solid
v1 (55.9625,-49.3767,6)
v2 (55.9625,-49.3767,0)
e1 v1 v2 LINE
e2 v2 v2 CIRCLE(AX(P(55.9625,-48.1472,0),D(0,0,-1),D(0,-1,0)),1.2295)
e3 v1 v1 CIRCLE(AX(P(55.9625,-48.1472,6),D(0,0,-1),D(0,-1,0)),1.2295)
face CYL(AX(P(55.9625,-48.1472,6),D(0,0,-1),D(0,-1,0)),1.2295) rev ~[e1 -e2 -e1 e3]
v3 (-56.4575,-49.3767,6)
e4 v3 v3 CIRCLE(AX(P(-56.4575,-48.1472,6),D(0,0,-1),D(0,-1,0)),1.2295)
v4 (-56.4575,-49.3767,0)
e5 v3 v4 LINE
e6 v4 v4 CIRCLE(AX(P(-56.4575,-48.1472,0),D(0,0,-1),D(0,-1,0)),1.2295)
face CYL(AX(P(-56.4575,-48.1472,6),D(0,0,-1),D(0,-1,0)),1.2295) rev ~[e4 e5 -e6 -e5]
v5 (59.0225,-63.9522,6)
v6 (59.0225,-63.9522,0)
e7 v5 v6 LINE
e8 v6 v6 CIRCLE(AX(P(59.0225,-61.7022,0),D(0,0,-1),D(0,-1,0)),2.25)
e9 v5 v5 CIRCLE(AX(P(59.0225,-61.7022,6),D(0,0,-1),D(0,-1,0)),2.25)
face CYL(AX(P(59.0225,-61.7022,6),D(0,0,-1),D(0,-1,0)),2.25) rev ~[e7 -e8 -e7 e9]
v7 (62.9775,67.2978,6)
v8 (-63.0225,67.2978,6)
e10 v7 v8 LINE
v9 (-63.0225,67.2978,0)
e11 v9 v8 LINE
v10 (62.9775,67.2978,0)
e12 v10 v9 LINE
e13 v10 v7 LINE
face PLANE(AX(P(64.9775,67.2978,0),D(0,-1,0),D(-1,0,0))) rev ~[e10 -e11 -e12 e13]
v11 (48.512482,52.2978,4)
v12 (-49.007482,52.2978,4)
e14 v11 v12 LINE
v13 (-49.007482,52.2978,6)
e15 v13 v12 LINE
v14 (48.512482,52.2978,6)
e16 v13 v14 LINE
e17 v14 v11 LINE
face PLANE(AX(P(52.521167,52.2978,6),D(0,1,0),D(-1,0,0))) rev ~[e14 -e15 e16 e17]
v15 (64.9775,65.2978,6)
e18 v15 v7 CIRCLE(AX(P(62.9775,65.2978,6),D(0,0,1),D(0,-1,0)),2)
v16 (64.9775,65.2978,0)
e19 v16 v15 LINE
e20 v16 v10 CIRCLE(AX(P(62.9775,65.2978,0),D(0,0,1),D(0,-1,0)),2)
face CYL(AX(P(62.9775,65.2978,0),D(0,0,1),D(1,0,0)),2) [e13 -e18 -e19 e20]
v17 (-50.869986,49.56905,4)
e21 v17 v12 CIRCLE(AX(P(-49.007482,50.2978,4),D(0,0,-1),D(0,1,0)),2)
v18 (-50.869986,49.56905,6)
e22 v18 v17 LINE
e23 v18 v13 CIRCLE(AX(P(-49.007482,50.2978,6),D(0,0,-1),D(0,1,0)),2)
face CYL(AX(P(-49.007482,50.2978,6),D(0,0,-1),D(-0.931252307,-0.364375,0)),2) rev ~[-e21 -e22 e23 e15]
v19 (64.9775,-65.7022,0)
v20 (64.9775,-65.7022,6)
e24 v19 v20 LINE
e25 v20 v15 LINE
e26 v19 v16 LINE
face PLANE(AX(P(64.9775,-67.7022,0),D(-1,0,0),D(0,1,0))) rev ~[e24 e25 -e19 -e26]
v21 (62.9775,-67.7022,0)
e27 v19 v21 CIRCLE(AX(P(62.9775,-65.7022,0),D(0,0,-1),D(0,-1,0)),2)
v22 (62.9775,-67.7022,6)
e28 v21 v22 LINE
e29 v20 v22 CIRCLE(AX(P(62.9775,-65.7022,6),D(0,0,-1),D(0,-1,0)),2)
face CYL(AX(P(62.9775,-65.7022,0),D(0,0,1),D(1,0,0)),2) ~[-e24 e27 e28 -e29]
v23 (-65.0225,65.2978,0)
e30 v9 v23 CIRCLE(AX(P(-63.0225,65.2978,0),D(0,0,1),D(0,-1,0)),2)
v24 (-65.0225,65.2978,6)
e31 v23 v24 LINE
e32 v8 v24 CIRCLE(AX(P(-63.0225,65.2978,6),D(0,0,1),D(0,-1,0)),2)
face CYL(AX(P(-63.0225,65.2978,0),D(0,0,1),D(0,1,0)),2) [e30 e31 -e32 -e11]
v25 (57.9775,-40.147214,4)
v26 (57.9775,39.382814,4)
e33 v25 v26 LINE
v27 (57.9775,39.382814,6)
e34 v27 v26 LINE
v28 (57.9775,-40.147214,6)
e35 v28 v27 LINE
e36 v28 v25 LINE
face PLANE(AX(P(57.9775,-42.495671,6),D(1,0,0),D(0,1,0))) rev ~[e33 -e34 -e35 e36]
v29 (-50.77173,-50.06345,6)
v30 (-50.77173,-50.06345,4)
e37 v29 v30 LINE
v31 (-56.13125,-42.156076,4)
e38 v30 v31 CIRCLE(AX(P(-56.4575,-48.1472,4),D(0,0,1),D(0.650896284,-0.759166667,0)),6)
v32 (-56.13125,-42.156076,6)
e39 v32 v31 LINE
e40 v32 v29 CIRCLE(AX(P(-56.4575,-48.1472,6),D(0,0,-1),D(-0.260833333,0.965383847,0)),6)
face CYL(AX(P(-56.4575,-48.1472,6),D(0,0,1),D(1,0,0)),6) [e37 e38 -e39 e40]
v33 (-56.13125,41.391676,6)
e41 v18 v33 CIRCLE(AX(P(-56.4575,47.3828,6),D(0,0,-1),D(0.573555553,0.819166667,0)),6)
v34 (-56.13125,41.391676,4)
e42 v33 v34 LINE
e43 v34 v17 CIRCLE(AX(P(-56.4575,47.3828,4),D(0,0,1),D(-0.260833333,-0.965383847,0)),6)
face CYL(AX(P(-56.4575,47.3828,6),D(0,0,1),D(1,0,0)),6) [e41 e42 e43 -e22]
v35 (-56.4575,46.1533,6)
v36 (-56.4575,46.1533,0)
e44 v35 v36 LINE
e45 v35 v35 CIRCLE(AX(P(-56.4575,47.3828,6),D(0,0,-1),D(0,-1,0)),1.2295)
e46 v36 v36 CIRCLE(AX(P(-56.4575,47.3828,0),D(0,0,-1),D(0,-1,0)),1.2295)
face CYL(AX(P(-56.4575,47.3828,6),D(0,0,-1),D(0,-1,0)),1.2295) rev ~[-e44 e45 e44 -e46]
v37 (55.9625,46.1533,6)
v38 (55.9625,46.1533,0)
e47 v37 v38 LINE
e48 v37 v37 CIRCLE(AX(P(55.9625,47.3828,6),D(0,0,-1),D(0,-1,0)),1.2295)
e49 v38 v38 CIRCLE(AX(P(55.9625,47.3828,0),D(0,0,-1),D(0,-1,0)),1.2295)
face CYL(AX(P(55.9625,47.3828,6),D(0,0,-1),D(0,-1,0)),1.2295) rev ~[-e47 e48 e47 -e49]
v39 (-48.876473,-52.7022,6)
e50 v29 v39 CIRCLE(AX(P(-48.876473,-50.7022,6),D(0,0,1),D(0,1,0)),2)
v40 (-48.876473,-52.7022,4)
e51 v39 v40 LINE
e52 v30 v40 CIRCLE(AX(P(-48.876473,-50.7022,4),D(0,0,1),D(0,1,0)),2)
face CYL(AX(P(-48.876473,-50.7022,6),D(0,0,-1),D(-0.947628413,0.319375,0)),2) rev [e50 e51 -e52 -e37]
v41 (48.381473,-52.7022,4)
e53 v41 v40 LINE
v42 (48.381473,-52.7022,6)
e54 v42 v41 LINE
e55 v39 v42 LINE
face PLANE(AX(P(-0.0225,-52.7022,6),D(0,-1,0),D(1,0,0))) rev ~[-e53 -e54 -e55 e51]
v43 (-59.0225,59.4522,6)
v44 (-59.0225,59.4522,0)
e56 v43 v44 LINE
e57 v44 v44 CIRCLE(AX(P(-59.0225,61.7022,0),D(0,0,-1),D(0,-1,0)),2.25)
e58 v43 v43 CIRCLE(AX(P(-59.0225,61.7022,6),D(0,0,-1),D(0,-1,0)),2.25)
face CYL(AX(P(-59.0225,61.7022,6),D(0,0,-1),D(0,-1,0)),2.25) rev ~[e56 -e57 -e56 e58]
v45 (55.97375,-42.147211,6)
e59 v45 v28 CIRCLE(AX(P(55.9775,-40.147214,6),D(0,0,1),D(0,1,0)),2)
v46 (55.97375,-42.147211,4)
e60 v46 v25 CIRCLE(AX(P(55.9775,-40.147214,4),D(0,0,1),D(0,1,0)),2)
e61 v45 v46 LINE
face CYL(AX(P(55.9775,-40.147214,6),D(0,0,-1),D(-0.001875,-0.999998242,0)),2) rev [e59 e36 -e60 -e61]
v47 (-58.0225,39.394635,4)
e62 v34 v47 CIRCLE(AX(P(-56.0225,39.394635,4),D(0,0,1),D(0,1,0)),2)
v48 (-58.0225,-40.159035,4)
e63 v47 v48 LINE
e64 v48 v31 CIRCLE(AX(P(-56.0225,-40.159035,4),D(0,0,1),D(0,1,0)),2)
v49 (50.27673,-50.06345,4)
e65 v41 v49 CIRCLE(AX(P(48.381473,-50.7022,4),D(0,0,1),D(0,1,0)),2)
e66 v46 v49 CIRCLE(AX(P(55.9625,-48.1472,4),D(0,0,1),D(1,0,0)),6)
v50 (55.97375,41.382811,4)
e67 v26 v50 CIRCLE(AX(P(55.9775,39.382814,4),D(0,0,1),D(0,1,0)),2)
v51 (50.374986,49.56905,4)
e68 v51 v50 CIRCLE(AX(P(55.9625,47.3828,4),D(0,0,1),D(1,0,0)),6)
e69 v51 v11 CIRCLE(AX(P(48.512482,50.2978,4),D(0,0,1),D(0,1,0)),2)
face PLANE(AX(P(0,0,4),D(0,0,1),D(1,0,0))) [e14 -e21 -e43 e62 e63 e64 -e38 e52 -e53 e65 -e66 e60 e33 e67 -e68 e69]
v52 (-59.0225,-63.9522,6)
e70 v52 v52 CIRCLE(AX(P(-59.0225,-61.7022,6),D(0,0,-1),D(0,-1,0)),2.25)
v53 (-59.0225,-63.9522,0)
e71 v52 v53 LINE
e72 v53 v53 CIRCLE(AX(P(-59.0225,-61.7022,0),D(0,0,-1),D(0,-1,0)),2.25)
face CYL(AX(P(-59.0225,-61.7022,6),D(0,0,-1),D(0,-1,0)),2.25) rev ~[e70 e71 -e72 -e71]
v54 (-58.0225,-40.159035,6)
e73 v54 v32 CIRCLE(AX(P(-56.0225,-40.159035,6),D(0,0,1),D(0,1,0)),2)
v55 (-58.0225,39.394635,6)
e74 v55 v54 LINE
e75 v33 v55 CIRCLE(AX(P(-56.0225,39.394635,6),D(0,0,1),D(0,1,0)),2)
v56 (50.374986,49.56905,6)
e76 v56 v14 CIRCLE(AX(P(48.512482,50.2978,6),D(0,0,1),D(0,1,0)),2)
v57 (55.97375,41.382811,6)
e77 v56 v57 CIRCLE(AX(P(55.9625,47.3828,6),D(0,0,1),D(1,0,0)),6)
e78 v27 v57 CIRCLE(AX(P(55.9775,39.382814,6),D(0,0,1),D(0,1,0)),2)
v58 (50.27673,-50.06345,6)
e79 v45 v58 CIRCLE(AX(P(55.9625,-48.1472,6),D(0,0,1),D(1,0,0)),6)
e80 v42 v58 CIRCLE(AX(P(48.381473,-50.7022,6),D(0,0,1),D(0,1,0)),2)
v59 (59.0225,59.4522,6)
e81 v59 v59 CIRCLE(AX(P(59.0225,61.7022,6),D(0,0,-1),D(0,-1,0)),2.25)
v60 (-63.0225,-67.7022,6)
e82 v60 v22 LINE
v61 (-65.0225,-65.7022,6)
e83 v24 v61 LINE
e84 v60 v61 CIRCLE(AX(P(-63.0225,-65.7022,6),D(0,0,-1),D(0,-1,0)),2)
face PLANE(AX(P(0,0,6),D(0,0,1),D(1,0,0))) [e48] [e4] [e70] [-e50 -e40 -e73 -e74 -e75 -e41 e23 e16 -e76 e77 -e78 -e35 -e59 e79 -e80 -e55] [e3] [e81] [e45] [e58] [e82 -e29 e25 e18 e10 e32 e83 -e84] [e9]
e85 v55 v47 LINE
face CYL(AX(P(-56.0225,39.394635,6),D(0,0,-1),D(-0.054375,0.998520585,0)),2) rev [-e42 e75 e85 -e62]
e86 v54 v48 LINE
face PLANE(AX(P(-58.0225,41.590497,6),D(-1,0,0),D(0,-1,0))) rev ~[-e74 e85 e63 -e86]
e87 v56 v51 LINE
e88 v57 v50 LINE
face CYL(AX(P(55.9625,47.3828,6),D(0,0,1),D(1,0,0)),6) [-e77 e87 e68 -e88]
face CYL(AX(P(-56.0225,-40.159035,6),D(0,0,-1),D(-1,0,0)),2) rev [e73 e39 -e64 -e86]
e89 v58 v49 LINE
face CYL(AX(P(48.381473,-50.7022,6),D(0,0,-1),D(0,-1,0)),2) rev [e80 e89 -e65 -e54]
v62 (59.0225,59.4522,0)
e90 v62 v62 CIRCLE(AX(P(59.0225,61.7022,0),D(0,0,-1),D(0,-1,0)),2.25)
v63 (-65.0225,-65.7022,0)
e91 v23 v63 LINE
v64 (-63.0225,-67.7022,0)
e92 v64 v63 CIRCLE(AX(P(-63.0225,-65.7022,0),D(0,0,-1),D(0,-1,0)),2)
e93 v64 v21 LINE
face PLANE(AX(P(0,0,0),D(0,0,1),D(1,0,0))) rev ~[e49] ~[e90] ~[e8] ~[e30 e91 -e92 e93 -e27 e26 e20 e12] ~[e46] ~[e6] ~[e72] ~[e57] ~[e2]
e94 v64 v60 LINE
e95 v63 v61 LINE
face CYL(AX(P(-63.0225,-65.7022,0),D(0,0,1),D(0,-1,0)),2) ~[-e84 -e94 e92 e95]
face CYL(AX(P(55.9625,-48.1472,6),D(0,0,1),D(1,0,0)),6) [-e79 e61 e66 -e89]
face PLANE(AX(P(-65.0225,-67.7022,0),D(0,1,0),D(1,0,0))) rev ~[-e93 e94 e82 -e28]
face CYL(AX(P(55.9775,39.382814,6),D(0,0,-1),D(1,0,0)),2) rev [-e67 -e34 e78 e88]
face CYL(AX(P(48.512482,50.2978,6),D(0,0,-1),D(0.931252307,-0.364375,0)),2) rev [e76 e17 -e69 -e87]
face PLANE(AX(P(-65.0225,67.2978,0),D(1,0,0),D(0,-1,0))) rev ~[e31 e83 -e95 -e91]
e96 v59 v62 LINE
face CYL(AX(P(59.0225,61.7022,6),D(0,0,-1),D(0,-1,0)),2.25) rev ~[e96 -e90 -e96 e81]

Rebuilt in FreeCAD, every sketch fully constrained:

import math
import FreeCAD as App
import Part
import Sketcher

V = App.Vector
Q = App.Units.Quantity


def edges_at(feature, points):
    """Names of the edges that pass closest to the given points."""
    edges = feature.Shape.Edges
    near = lambda p: min(range(len(edges)), key=lambda i: edges[i].distToShape(Part.Vertex(*p))[0])
    return sorted({f"Edge{near(p) + 1}" for p in points})


def add_polygon(sketch, points):
    """Adds a closed chain of lines whose ends are joined by coincident constraints."""
    first, n = sketch.GeometryCount, len(points)
    for a, b in zip(points, points[1:] + points[:1]):
        sketch.addGeometry(Part.LineSegment(App.Vector(*a, 0), App.Vector(*b, 0)), False)
    for i in range(n):
        sketch.addConstraint(Sketcher.Constraint("Coincident", first + i, 2, first + (i + 1) % n, 1))

doc = App.newDocument("Part")
params = doc.addObject("Spreadsheet::Sheet", "Params")
for row, (alias, value) in enumerate([
    ("sketch1_width", "130 mm"),
    ("sketch1_height", "135 mm"),
    ("pad1_length", "6 mm"),
    ("hole_diameter", "2.459 mm"),
    ("sketch3_radius", "6 mm"),
    ("pocket1_length", "2 mm"),
    ("fillet_radius", "2 mm"),
    ("sketch4_diameter", "4.5 mm"),
    ("hole2_diameter", "4.5 mm"),
    ("fillet2_radius", "2 mm"),
], start=1):
    params.set(f"A{row}", alias)
    params.set(f"B{row}", "=" + value)
    params.setAlias(f"B{row}", alias)

body = doc.addObject("PartDesign::Body", "Body")

# Sketch on XY plane
sketch1 = body.newObject("Sketcher::SketchObject", "Sketch")
sketch1.AttachmentSupport = (doc.getObject("XY_Plane"), [""])
sketch1.MapMode = "FlatFace"
add_polygon(sketch1, [(64.9775, -67.7022), (64.9775, 67.2978), (-65.0225, 67.2978), (-65.0225, -67.7022)])  # lines 0-3
sketch1.addGeometry(Part.Circle(V(-56.4575, -48.1472, 0), V(0, 0, 1), 1.059), False)  # 4
sketch1.addGeometry(Part.Circle(V(55.9625, -48.1472, 0), V(0, 0, 1), 0.7793), False)  # 5
sketch1.addGeometry(Part.Circle(V(-56.4575, 47.3828, 0), V(0, 0, 1), 0.7501), False)  # 6
sketch1.addGeometry(Part.Circle(V(55.9625, 47.3828, 0), V(0, 0, 1), 0.9848), False)  # 7
sketch1.addConstraint(Sketcher.Constraint("Vertical", 0))
sketch1.addConstraint(Sketcher.Constraint("Horizontal", 1))
sketch1.addConstraint(Sketcher.Constraint("Vertical", 2))
sketch1.addConstraint(Sketcher.Constraint("Horizontal", 3))
sketch1.addConstraint(Sketcher.Constraint("Horizontal", 4, 3, 5, 3))
sketch1.addConstraint(Sketcher.Constraint("Horizontal", 6, 3, 7, 3))
sketch1.addConstraint(Sketcher.Constraint("Vertical", 4, 3, 6, 3))
sketch1.addConstraint(Sketcher.Constraint("Vertical", 5, 3, 7, 3))
sketch1.addConstraint(Sketcher.Constraint("DistanceX", 1, 2, 1, 1, Q("130 mm")))
sketch1.addConstraint(Sketcher.Constraint("DistanceY", 0, 1, 0, 2, Q("135 mm")))
sketch1.addConstraint(Sketcher.Constraint("Diameter", 4, Q("2.118 mm")))
sketch1.addConstraint(Sketcher.Constraint("Diameter", 5, Q("1.5586 mm")))
sketch1.addConstraint(Sketcher.Constraint("Diameter", 6, Q("1.5002 mm")))
sketch1.addConstraint(Sketcher.Constraint("Diameter", 7, Q("1.9696 mm")))
sketch1.addConstraint(Sketcher.Constraint("DistanceX", 4, 3, 5, 3, Q("112.42 mm")))
sketch1.addConstraint(Sketcher.Constraint("DistanceY", 4, 3, 6, 3, Q("95.53 mm")))
sketch1.addConstraint(Sketcher.Constraint("DistanceX", 7, 3, 0, 2, Q("9.015 mm")))
sketch1.addConstraint(Sketcher.Constraint("DistanceY", 7, 3, 0, 2, Q("19.915 mm")))
sketch1.addConstraint(Sketcher.Constraint("DistanceX", 4, 3, -1, 1, Q("56.4575 mm")))
sketch1.addConstraint(Sketcher.Constraint("DistanceY", 4, 3, -1, 1, Q("48.1472 mm")))
sketch1.setExpression("Constraints[12]", "Params.sketch1_width")
sketch1.setExpression("Constraints[13]", "Params.sketch1_height")
pad1 = body.newObject("PartDesign::Pad", "Pad")
pad1.Profile = sketch1
pad1.setExpression("Length", "Params.pad1_length")

# Sketch on XY plane
sketch2 = body.newObject("Sketcher::SketchObject", "Sketch001")
sketch2.AttachmentSupport = (doc.getObject("XY_Plane"), [""])
sketch2.MapMode = "FlatFace"
sketch2.AttachmentOffset = App.Placement(V(0, 0, 6), App.Rotation())
sketch2.addGeometry(Part.Circle(V(-56.4575, 47.3828, 0), V(0, 0, 1), 1.2295), False)
sketch2.addGeometry(Part.Circle(V(55.9625, 47.3828, 0), V(0, 0, 1), 1.2295), False)
sketch2.addGeometry(Part.Circle(V(55.9625, -48.1472, 0), V(0, 0, 1), 1.2295), False)
sketch2.addGeometry(Part.Circle(V(-56.4575, -48.1472, 0), V(0, 0, 1), 1.2295), False)
sketch2.addConstraint(Sketcher.Constraint("Equal", 0, 1))
sketch2.addConstraint(Sketcher.Constraint("Equal", 1, 2))
sketch2.addConstraint(Sketcher.Constraint("Equal", 2, 3))
sketch2.addConstraint(Sketcher.Constraint("Horizontal", 0, 3, 1, 3))
sketch2.addConstraint(Sketcher.Constraint("Horizontal", 2, 3, 3, 3))
sketch2.addConstraint(Sketcher.Constraint("Vertical", 1, 3, 2, 3))
sketch2.addConstraint(Sketcher.Constraint("Vertical", 0, 3, 3, 3))
sketch2.addConstraint(Sketcher.Constraint("Diameter", 0, Q("2.459 mm")))
sketch2.addConstraint(Sketcher.Constraint("DistanceX", 0, 3, 1, 3, Q("112.42 mm")))
sketch2.addConstraint(Sketcher.Constraint("DistanceY", 2, 3, 1, 3, Q("95.53 mm")))
sketch2.addConstraint(Sketcher.Constraint("DistanceX", 0, 3, -1, 1, Q("56.4575 mm")))
sketch2.addConstraint(Sketcher.Constraint("DistanceY", -1, 1, 0, 3, Q("47.3828 mm")))
doc.recompute()
hole = body.newObject("PartDesign::Hole", "Hole")
hole.Profile = sketch2
hole.ThreadType = "None"
hole.setExpression("Diameter", "Params.hole_diameter")
hole.DepthType = "ThroughAll"

# Sketch on XY plane
sketch3 = body.newObject("Sketcher::SketchObject", "Sketch002")
sketch3.AttachmentSupport = (doc.getObject("XY_Plane"), [""])
sketch3.MapMode = "FlatFace"
sketch3.AttachmentOffset = App.Placement(V(0, 0, 6), App.Rotation())
sketch3.addGeometry(Part.LineSegment(V(52.521167, 52.2978, 0), V(-53.016167, 52.2978, 0)), False)
sketch3.addGeometry(Part.ArcOfCircle(Part.Circle(V(-56.4575, 47.3828, 0), V(0, 0, 1), 6), math.radians(-105.119515), math.radians(55.001461)), False)
sketch3.addGeometry(Part.LineSegment(V(-58.0225, 41.590497, 0), V(-58.0225, -42.354897, 0)), False)
sketch3.addGeometry(Part.ArcOfCircle(Part.Circle(V(-56.4575, -48.1472, 0), V(0, 0, 1), 6), math.radians(-49.390788), math.radians(105.119515)), False)
sketch3.addGeometry(Part.LineSegment(V(-52.552122, -52.7022, 0), V(52.057122, -52.7022, 0)), False)
sketch3.addGeometry(Part.ArcOfCircle(Part.Circle(V(55.9625, -48.1472, 0), V(0, 0, 1), 6), math.radians(70.37678), math.radians(229.390788)), False)
sketch3.addGeometry(Part.LineSegment(V(57.9775, -42.495671, 0), V(57.9775, 41.731271, 0)), False)
sketch3.addGeometry(Part.ArcOfCircle(Part.Circle(V(55.9625, 47.3828, 0), V(0, 0, 1), 6), math.radians(124.998539), math.radians(289.62322)), False)
sketch3.addConstraint(Sketcher.Constraint("Coincident", 0, 2, 1, 2))
sketch3.addConstraint(Sketcher.Constraint("Coincident", 1, 1, 2, 1))
sketch3.addConstraint(Sketcher.Constraint("Coincident", 2, 2, 3, 2))
sketch3.addConstraint(Sketcher.Constraint("Coincident", 3, 1, 4, 1))
sketch3.addConstraint(Sketcher.Constraint("Coincident", 4, 2, 5, 2))
sketch3.addConstraint(Sketcher.Constraint("Coincident", 5, 1, 6, 1))
sketch3.addConstraint(Sketcher.Constraint("Coincident", 6, 2, 7, 2))
sketch3.addConstraint(Sketcher.Constraint("Coincident", 7, 1, 0, 1))
sketch3.addConstraint(Sketcher.Constraint("Horizontal", 0))
sketch3.addConstraint(Sketcher.Constraint("Vertical", 2))
sketch3.addConstraint(Sketcher.Constraint("Horizontal", 4))
sketch3.addConstraint(Sketcher.Constraint("Vertical", 6))
sketch3.addConstraint(Sketcher.Constraint("Equal", 1, 3))
sketch3.addConstraint(Sketcher.Constraint("Equal", 3, 5))
sketch3.addConstraint(Sketcher.Constraint("Equal", 5, 7))
sketch3.addConstraint(Sketcher.Constraint("Horizontal", 3, 3, 5, 3))
sketch3.addConstraint(Sketcher.Constraint("Horizontal", 1, 3, 7, 3))
sketch3.addConstraint(Sketcher.Constraint("Vertical", 1, 3, 3, 3))
sketch3.addConstraint(Sketcher.Constraint("Vertical", 5, 3, 7, 3))
sketch3.addConstraint(Sketcher.Constraint("Radius", 1, Q("6 mm")))
sketch3.addConstraint(Sketcher.Constraint("DistanceY", 3, 1, 0, 2, Q("105 mm")))
sketch3.addConstraint(Sketcher.Constraint("DistanceY", 6, 1, 6, 2, Q("84.227 mm")))
sketch3.addConstraint(Sketcher.Constraint("DistanceY", 3, 3, 1, 3, Q("95.53 mm")))
sketch3.addConstraint(Sketcher.Constraint("DistanceX", 3, 3, 5, 3, Q("112.42 mm")))
sketch3.addConstraint(Sketcher.Constraint("DistanceX", 0, 2, 0, 1, Q("105.5373 mm")))
sketch3.addConstraint(Sketcher.Constraint("DistanceY", 2, 2, 2, 1, Q("83.9454 mm")))
sketch3.addConstraint(Sketcher.Constraint("DistanceY", 2, 2, -1, 1, Q("42.355 mm")))
sketch3.addConstraint(Sketcher.Constraint("DistanceX", 1, 3, -1, 1, Q("56.4575 mm")))
sketch3.setExpression("Constraints[19]", "Params.sketch3_radius")
pocket1 = body.newObject("PartDesign::Pocket", "Pocket")
pocket1.Profile = sketch3
pocket1.setExpression("Length", "Params.pocket1_length")
doc.recompute()

fillet = body.newObject("PartDesign::Fillet", "Fillet")
fillet.Base = (pocket1, edges_at(pocket1, [
    (-58.023, -42.355, 5),
    (-52.552, -52.702, 5),
    (52.057, -52.702, 5),
    (57.977, -42.496, 5),
    (57.977, 41.731, 5),
    (52.521, 52.298, 5),
    (-53.016, 52.298, 5),
    (-58.023, 41.59, 5),
]))
fillet.setExpression("Radius", "Params.fillet_radius")

# Sketch on XY plane
sketch4 = body.newObject("Sketcher::SketchObject", "Sketch003")
sketch4.AttachmentSupport = (doc.getObject("XY_Plane"), [""])
sketch4.MapMode = "FlatFace"
sketch4.AttachmentOffset = App.Placement(V(0, 0, 6), App.Rotation())
sketch4.addGeometry(Part.Circle(V(-59.0225, -61.7022, 0), V(0, 0, 1), 2.25), False)
sketch4.addGeometry(Part.Circle(V(59.0225, -61.7022, 0), V(0, 0, 1), 2.25), False)
sketch4.addGeometry(Part.Circle(V(59.0225, 61.7022, 0), V(0, 0, 1), 2.25), False)
sketch4.addGeometry(Part.Circle(V(-59.0225, 61.7022, 0), V(0, 0, 1), 2.25), False)
sketch4.addConstraint(Sketcher.Constraint("Equal", 0, 1))
sketch4.addConstraint(Sketcher.Constraint("Equal", 1, 2))
sketch4.addConstraint(Sketcher.Constraint("Equal", 2, 3))
sketch4.addConstraint(Sketcher.Constraint("Symmetric", 0, 3, 2, 3, -1, 1))
sketch4.addConstraint(Sketcher.Constraint("Symmetric", 1, 3, 3, 3, -1, 1))
sketch4.addConstraint(Sketcher.Constraint("Symmetric", 0, 3, 1, 3, -2))
sketch4.addConstraint(Sketcher.Constraint("Diameter", 0, Q("4.5 mm")))
sketch4.addConstraint(Sketcher.Constraint("DistanceX", 0, 3, 1, 3, Q("118.045 mm")))
sketch4.addConstraint(Sketcher.Constraint("DistanceY", 0, 3, -1, 1, Q("61.7022 mm")))
sketch4.setExpression("Constraints[6]", "Params.sketch4_diameter")
doc.recompute()
hole2 = body.newObject("PartDesign::Hole", "Hole001")
hole2.Profile = sketch4
hole2.ThreadType = "None"
hole2.setExpression("Diameter", "Params.hole2_diameter")
hole2.DepthType = "ThroughAll"
doc.recompute()

fillet2 = body.newObject("PartDesign::Fillet", "Fillet001")
fillet2.Base = (hole2, edges_at(hole2, [
    (64.978, -67.702, 3),
    (-65.022, -67.702, 3),
    (-65.022, 67.298, 3),
    (64.978, 67.298, 3),
]))
fillet2.setExpression("Radius", "Params.fillet2_radius")

doc.recompute()
